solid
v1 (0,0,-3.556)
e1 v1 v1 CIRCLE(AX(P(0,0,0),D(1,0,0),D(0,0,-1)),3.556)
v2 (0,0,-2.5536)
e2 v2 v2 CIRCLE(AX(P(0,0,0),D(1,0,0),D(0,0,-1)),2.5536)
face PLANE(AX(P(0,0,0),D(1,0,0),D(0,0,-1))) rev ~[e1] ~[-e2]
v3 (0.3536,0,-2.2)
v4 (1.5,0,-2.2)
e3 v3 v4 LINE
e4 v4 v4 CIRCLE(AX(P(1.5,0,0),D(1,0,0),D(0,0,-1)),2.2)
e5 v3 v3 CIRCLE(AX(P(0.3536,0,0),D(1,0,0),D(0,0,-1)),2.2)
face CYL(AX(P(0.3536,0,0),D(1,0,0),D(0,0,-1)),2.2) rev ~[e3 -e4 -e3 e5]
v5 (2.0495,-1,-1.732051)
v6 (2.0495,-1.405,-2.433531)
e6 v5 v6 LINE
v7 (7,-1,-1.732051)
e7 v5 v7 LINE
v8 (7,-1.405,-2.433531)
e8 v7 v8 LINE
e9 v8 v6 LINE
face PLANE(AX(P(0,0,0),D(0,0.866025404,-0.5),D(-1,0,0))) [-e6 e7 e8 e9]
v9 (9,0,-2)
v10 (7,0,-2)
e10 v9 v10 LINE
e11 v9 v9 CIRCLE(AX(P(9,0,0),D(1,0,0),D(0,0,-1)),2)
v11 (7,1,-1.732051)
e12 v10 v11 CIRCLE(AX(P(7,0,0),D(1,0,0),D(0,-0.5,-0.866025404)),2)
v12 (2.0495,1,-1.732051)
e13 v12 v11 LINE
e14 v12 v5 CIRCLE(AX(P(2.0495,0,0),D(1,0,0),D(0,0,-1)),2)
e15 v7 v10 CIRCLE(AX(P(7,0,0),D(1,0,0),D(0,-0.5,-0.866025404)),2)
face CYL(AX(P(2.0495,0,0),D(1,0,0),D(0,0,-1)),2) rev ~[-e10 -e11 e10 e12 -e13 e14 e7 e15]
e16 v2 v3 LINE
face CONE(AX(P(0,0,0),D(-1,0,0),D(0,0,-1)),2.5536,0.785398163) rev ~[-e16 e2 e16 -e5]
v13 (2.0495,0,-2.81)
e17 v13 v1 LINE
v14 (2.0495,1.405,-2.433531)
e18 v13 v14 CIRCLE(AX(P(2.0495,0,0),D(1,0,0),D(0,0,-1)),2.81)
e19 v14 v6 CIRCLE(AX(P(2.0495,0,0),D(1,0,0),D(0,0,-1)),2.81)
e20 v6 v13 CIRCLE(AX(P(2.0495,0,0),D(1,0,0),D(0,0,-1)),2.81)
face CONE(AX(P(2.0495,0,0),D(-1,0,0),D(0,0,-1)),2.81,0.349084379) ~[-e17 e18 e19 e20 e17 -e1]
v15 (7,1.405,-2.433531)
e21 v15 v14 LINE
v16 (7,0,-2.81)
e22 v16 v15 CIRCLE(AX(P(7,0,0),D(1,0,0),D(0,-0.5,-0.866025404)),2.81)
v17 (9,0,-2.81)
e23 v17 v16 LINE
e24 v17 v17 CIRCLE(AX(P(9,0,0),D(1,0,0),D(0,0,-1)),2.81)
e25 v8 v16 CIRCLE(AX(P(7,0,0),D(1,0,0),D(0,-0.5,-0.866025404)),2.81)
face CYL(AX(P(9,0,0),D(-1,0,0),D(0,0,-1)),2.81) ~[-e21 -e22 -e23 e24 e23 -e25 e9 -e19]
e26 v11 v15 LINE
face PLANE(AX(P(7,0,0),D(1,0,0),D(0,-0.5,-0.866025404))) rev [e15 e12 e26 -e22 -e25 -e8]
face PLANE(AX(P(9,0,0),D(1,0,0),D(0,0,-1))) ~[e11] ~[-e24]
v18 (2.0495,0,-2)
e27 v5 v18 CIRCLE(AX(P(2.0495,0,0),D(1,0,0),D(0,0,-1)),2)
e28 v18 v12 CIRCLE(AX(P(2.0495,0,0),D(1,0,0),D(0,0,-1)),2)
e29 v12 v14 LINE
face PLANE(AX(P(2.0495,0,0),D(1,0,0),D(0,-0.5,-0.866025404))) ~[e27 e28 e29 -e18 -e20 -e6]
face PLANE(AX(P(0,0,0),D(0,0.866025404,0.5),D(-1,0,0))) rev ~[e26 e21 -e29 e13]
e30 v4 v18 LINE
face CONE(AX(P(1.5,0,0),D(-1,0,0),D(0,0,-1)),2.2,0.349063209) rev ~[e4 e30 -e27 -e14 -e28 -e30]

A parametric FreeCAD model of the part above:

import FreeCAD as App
import Part
import Sketcher
from FreeCAD import Vector
Q = App.Units.Quantity

doc = App.newDocument("Part")
params = doc.addObject("Spreadsheet::Sheet", "Params")
for row, (alias, value) in enumerate([
    ("sketch1_length", "0.5 mm"),
    ("sketch1_height", "0.81 mm"),
    ("revolution_angle", "360 deg"),
    ("sketch2_height", "0.81 mm"),
    ("groove_angle", "60 deg"),
], start=1):
    params.set(f"A{row}", alias)
    params.set(f"B{row}", "=" + value)
    params.setAlias(f"B{row}", alias)

body = doc.addObject("PartDesign::Body", "Body")

# Sketch on XZ plane
sketch1 = body.newObject("Sketcher::SketchObject", "Sketch")
sketch1.AttachmentSupport = (doc.getObject("XZ_Plane"), [""])
sketch1.MapMode = "FlatFace"
sketch1.addGeometry([
    Part.LineSegment(Vector(0, -3.6, 0), Vector(0, -2.6, 0)),  # 0
    Part.LineSegment(Vector(0, -2.6, 0), Vector(0.4, -2.2, 0)),  # 1
    Part.LineSegment(Vector(0.4, -2.2, 0), Vector(1.5, -2.2, 0)),  # 2
    Part.LineSegment(Vector(1.5, -2.2, 0), Vector(2, -2, 0)),  # 3
    Part.LineSegment(Vector(2, -2, 0), Vector(9, -2, 0)),  # 4
    Part.LineSegment(Vector(9, -2, 0), Vector(9, -2.8, 0)),  # 5
    Part.LineSegment(Vector(9, -2.8, 0), Vector(2, -2.8, 0)),  # 6
    Part.LineSegment(Vector(2, -2.8, 0), Vector(0, -3.6, 0)),  # 7
], False)
sketch1.addConstraint([
    Sketcher.Constraint("Coincident", 0, 2, 1, 1),
    Sketcher.Constraint("Coincident", 1, 2, 2, 1),
    Sketcher.Constraint("Coincident", 2, 2, 3, 1),
    Sketcher.Constraint("Coincident", 3, 2, 4, 1),
    Sketcher.Constraint("Coincident", 4, 2, 5, 1),
    Sketcher.Constraint("Coincident", 5, 2, 6, 1),
    Sketcher.Constraint("Coincident", 6, 2, 7, 1),
    Sketcher.Constraint("Coincident", 7, 2, 0, 1),
    Sketcher.Constraint("Vertical", 0),
    Sketcher.Constraint("Horizontal", 2),
    Sketcher.Constraint("Horizontal", 4),
    Sketcher.Constraint("Vertical", 5),
    Sketcher.Constraint("Horizontal", 6),
    Sketcher.Constraint("PointOnObject", 0, 2, -2),
    Sketcher.Constraint("Parallel", 3, 7),
    Sketcher.Constraint("Vertical", 3, 2, 6, 2),
    Sketcher.Constraint("DistanceY", 3, 2, -1, 1, 2.0),
    Sketcher.Constraint("DistanceX", -1, 1, 4, 2, 9.0),
    Sketcher.Constraint("Distance", 1, 0.5),
    Sketcher.Constraint("DistanceY", 5, 2, 5, 1, 0.81),
    Sketcher.Constraint("DistanceY", 1, 2, -1, 1, 2.2),
    Sketcher.Constraint("DistanceX", -1, 1, 2, 2, 1.5),
    Sketcher.Constraint("Angle", 1, Q("45 deg")),
    Sketcher.Constraint("Angle", 3, Q("19.9998 deg")),
])
sketch1.setExpression("Constraints[18]", "Params.sketch1_length")
sketch1.setExpression("Constraints[19]", "Params.sketch1_height")
revolution = body.newObject("PartDesign::Revolution", "Revolution")
revolution.Profile = sketch1
revolution.ReferenceAxis = (sketch1, ["H_Axis"])
revolution.setExpression("Angle", "Params.revolution_angle")

# Sketch on XZ plane
sketch2 = body.newObject("Sketcher::SketchObject", "Sketch001")
sketch2.AttachmentSupport = (doc.getObject("XZ_Plane"), [""])
sketch2.MapMode = "FlatFace"
sketch2.addGeometry([
    Part.LineSegment(Vector(7, -2.8, 0), Vector(2, -2.8, 0)),
    Part.LineSegment(Vector(2, -2.8, 0), Vector(2, -2, 0)),
    Part.LineSegment(Vector(2, -2, 0), Vector(7, -2, 0)),
    Part.LineSegment(Vector(7, -2, 0), Vector(7, -2.8, 0)),
], False)
sketch2.addConstraint([
    Sketcher.Constraint("Coincident", 0, 2, 1, 1),
    Sketcher.Constraint("Coincident", 1, 2, 2, 1),
    Sketcher.Constraint("Coincident", 2, 2, 3, 1),
    Sketcher.Constraint("Coincident", 3, 2, 0, 1),
    Sketcher.Constraint("Horizontal", 0),
    Sketcher.Constraint("Vertical", 1),
    Sketcher.Constraint("Horizontal", 2),
    Sketcher.Constraint("Vertical", 3),
    Sketcher.Constraint("DistanceY", 1, 2, -1, 1, 2.0),
    Sketcher.Constraint("DistanceY", 1, 1, 1, 2, 0.81),
    Sketcher.Constraint("DistanceX", -1, 1, 2, 2, 7.0),
    Sketcher.Constraint("DistanceX", 0, 2, 0, 1, 4.9505),
])
sketch2.setExpression("Constraints[9]", "Params.sketch2_height")
groove = body.newObject("PartDesign::Groove", "Groove")
groove.Profile = sketch2
groove.ReferenceAxis = (sketch2, ["H_Axis"])
groove.setExpression("Angle", "Params.groove_angle")
groove.Midplane = True

doc.recompute()
